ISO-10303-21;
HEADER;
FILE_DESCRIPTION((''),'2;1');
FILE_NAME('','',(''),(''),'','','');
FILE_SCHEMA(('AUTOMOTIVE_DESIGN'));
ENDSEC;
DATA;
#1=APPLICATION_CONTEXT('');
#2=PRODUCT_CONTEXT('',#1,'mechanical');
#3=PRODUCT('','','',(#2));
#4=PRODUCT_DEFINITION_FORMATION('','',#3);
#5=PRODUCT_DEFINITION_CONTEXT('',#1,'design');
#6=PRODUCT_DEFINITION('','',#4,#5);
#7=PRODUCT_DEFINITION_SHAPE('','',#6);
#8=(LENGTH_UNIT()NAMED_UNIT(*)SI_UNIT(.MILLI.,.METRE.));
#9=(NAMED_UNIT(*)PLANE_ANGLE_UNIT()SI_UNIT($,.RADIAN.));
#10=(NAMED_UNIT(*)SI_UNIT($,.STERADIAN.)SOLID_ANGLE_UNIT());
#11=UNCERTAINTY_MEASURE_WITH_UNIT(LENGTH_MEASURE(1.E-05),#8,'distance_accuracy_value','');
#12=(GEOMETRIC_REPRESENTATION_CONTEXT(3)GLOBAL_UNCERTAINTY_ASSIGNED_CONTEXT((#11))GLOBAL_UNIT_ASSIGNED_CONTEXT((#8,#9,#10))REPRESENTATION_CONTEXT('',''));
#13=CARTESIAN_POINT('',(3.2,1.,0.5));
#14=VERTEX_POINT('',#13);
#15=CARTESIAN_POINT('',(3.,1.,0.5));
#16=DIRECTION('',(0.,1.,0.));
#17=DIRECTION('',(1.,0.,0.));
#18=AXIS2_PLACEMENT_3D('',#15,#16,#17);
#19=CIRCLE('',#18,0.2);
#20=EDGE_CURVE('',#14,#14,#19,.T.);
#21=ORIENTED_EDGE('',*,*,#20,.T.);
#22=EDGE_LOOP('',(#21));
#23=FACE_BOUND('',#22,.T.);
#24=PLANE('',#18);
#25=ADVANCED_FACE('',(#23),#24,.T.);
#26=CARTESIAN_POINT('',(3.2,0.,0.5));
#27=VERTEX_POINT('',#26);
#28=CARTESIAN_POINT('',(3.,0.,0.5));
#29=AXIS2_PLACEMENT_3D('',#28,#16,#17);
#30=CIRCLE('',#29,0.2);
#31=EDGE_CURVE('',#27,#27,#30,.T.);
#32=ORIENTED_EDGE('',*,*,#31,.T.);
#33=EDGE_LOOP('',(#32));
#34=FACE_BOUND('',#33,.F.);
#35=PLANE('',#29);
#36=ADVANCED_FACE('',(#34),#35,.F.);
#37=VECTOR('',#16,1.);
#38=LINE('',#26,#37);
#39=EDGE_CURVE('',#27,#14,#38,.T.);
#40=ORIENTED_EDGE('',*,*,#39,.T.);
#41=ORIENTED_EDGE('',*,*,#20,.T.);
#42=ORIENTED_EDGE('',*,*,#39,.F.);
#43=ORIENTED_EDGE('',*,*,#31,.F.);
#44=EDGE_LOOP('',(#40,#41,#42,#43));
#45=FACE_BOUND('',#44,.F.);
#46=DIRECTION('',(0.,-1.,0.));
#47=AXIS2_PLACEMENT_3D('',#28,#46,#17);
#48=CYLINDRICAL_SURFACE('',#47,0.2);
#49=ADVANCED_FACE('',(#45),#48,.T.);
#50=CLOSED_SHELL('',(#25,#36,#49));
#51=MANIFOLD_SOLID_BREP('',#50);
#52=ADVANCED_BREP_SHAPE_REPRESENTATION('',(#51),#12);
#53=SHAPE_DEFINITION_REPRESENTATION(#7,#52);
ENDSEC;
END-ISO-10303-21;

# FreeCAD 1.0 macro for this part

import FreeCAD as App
import Part
import Sketcher
from FreeCAD import Vector
Q = App.Units.Quantity

doc = App.newDocument("Part")
body = doc.addObject("PartDesign::Body", "Body")

# Sketch on XZ plane
sketch1 = body.newObject("Sketcher::SketchObject", "Sketch")
sketch1.AttachmentSupport = (doc.getObject("XZ_Plane"), [""])
sketch1.MapMode = "FlatFace"
sketch1.addGeometry(Part.Circle(Vector(3, 0.5, 0), Vector(0, 0, 1), 0.2), False)
sketch1.addConstraint(Sketcher.Constraint("Diameter", 0, Q("0.4 mm")))
sketch1.addConstraint(Sketcher.Constraint("DistanceX", -1, 1, 0, 3, Q("3 mm")))
sketch1.addConstraint(Sketcher.Constraint("DistanceY", -1, 1, 0, 3, Q("0.5 mm")))
pad1 = body.newObject("PartDesign::Pad", "Pad")
pad1.Profile = sketch1
pad1.Length = 1
pad1.Reversed = True

doc.recompute()
